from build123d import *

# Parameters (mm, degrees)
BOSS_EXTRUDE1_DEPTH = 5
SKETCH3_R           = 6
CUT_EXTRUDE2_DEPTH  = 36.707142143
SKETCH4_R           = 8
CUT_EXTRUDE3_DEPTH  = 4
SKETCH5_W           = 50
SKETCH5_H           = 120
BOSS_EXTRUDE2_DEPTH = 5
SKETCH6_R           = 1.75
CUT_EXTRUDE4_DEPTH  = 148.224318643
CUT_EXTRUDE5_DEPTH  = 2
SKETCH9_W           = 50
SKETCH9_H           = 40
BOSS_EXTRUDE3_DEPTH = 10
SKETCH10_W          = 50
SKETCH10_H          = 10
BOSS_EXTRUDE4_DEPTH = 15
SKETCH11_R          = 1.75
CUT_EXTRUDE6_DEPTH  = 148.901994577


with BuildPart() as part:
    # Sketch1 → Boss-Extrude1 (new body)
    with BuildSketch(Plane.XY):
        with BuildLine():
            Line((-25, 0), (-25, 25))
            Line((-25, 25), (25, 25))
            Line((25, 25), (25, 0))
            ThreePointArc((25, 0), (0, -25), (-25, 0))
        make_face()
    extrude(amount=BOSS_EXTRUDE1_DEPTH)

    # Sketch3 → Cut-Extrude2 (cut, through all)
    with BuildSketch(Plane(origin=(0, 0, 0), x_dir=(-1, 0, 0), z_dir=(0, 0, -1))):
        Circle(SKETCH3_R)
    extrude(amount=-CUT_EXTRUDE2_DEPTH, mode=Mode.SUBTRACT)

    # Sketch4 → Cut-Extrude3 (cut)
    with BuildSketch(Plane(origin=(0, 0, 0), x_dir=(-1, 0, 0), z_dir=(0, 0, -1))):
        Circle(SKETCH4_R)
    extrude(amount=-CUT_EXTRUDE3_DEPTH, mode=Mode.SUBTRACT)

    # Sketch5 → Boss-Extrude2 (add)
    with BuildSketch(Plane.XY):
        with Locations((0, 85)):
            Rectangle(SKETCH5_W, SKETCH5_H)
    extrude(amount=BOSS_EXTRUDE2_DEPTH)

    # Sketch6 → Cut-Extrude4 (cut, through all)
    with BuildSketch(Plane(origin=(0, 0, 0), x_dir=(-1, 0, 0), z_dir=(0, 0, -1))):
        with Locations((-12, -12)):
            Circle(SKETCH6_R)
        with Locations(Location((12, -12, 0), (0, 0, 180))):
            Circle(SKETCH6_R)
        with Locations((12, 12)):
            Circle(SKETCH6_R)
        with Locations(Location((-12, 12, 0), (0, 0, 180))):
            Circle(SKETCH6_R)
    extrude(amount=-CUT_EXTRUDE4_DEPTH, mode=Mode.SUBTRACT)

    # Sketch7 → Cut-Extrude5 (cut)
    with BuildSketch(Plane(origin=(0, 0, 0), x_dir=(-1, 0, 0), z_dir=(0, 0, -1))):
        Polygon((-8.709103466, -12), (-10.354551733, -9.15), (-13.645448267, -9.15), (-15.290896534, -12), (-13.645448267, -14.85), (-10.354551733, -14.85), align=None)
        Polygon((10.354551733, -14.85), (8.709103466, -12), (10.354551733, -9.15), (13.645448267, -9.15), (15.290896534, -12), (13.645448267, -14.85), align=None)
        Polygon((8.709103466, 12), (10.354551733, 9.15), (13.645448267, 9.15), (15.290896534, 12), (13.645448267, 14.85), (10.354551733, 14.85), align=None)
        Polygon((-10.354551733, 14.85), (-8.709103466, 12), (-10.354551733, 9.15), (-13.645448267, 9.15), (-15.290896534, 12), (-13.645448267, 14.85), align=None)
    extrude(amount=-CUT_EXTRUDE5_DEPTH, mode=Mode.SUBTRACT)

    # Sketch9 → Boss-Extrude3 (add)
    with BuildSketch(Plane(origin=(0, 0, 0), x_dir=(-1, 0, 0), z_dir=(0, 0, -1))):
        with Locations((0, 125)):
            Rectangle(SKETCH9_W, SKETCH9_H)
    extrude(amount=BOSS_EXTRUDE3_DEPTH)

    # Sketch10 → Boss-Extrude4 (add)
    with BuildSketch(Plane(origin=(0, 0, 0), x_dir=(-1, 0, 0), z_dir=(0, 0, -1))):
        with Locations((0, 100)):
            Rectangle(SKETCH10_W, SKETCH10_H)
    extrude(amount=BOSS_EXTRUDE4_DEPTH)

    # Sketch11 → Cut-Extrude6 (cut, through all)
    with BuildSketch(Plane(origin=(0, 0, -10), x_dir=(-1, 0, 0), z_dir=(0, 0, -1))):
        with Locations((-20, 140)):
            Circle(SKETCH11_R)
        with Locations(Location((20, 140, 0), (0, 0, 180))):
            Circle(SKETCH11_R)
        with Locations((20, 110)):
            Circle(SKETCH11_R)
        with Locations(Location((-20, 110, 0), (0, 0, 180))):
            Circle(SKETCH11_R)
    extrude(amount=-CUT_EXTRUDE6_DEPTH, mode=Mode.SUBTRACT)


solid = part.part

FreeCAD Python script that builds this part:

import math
import FreeCAD as App
import Part
import Sketcher

V = App.Vector
Q = App.Units.Quantity

doc = App.newDocument("Part")
body = doc.addObject("PartDesign::Body", "Body")

# Sketch on XY plane
sketch1 = body.newObject("Sketcher::SketchObject", "Sketch")
sketch1.AttachmentSupport = (doc.getObject("XY_Plane"), [""])
sketch1.MapMode = "FlatFace"
sketch1.addGeometry(Part.LineSegment(V(-25, 25, 0), V(-25, 0, 0)), False)
sketch1.addGeometry(Part.ArcOfCircle(Part.Circle(V(0, 0, 0), V(0, 0, 1), 25), math.radians(180), math.radians(360)), False)
sketch1.addGeometry(Part.LineSegment(V(25, 0, 0), V(25, 25, 0)), False)
sketch1.addGeometry(Part.LineSegment(V(25, 25, 0), V(-25, 25, 0)), False)
sketch1.addConstraint(Sketcher.Constraint("Tangent", 0, 2, 1, 1))
sketch1.addConstraint(Sketcher.Constraint("Tangent", 1, 2, 2, 1))
sketch1.addConstraint(Sketcher.Constraint("Coincident", 2, 2, 3, 1))
sketch1.addConstraint(Sketcher.Constraint("Coincident", 3, 2, 0, 1))
sketch1.addConstraint(Sketcher.Constraint("Vertical", 0))
sketch1.addConstraint(Sketcher.Constraint("Vertical", 2))
sketch1.addConstraint(Sketcher.Constraint("Horizontal", 3))
sketch1.addConstraint(Sketcher.Constraint("Coincident", 1, 3, -1, 1))
sketch1.addConstraint(Sketcher.Constraint("Radius", 1, Q("25 mm")))
sketch1.addConstraint(Sketcher.Constraint("DistanceY", 0, 2, 0, 1, Q("25 mm")))
pad1 = body.newObject("PartDesign::Pad", "Pad")
pad1.Profile = sketch1
pad1.Length = 5

# Sketch on XY plane
sketch2 = body.newObject("Sketcher::SketchObject", "Sketch001")
sketch2.AttachmentSupport = (doc.getObject("XY_Plane"), [""])
sketch2.MapMode = "FlatFace"
sketch2.addGeometry(Part.Circle(V(0, 0, 0), V(0, 0, 1), 6), False)
sketch2.addConstraint(Sketcher.Constraint("Coincident", 0, 3, -1, 1))
sketch2.addConstraint(Sketcher.Constraint("Diameter", 0, Q("12 mm")))
pocket1 = body.newObject("PartDesign::Pocket", "Pocket")
pocket1.Profile = sketch2
pocket1.Type = "ThroughAll"
pocket1.Reversed = True

# Sketch on XY plane
sketch3 = body.newObject("Sketcher::SketchObject", "Sketch002")
sketch3.AttachmentSupport = (doc.getObject("XY_Plane"), [""])
sketch3.MapMode = "FlatFace"
sketch3.addGeometry(Part.Circle(V(0, 0, 0), V(0, 0, 1), 8), False)
sketch3.addConstraint(Sketcher.Constraint("Coincident", 0, 3, -1, 1))
sketch3.addConstraint(Sketcher.Constraint("Diameter", 0, Q("16 mm")))
pocket2 = body.newObject("PartDesign::Pocket", "Pocket001")
pocket2.Profile = sketch3
pocket2.Length = 4
pocket2.Reversed = True

# Sketch on XY plane
sketch4 = body.newObject("Sketcher::SketchObject", "Sketch003")
sketch4.AttachmentSupport = (doc.getObject("XY_Plane"), [""])
sketch4.MapMode = "FlatFace"
sketch4.addGeometry(Part.LineSegment(V(-25, 145, 0), V(-25, 25, 0)), False)
sketch4.addGeometry(Part.LineSegment(V(-25, 25, 0), V(25, 25, 0)), False)
sketch4.addGeometry(Part.LineSegment(V(25, 25, 0), V(25, 145, 0)), False)
sketch4.addGeometry(Part.LineSegment(V(25, 145, 0), V(-25, 145, 0)), False)
sketch4.addConstraint(Sketcher.Constraint("Coincident", 0, 2, 1, 1))
sketch4.addConstraint(Sketcher.Constraint("Coincident", 1, 2, 2, 1))
sketch4.addConstraint(Sketcher.Constraint("Coincident", 2, 2, 3, 1))
sketch4.addConstraint(Sketcher.Constraint("Coincident", 3, 2, 0, 1))
sketch4.addConstraint(Sketcher.Constraint("Vertical", 0))
sketch4.addConstraint(Sketcher.Constraint("Horizontal", 1))
sketch4.addConstraint(Sketcher.Constraint("Vertical", 2))
sketch4.addConstraint(Sketcher.Constraint("Horizontal", 3))
sketch4.addConstraint(Sketcher.Constraint("DistanceX", 1, 1, 1, 2, Q("50 mm")))
sketch4.addConstraint(Sketcher.Constraint("DistanceY", 0, 2, 0, 1, Q("120 mm")))
sketch4.addConstraint(Sketcher.Constraint("DistanceX", 0, 2, -1, 1, Q("25 mm")))
sketch4.addConstraint(Sketcher.Constraint("DistanceY", -1, 1, 0, 2, Q("25 mm")))
pad2 = body.newObject("PartDesign::Pad", "Pad001")
pad2.Profile = sketch4
pad2.Length = 5

# Sketch on XY plane
sketch5 = body.newObject("Sketcher::SketchObject", "Sketch004")
sketch5.AttachmentSupport = (doc.getObject("XY_Plane"), [""])
sketch5.MapMode = "FlatFace"
sketch5.addGeometry(Part.Circle(V(12, -12, 0), V(0, 0, 1), 1.8), False)
sketch5.addGeometry(Part.Circle(V(-12, -12, 0), V(0, 0, 1), 1.8), False)
sketch5.addGeometry(Part.Circle(V(-12, 12, 0), V(0, 0, 1), 1.8), False)
sketch5.addGeometry(Part.Circle(V(12, 12, 0), V(0, 0, 1), 1.8), False)
sketch5.addConstraint(Sketcher.Constraint("Equal", 0, 1))
sketch5.addConstraint(Sketcher.Constraint("Equal", 1, 2))
sketch5.addConstraint(Sketcher.Constraint("Equal", 2, 3))
sketch5.addConstraint(Sketcher.Constraint("Symmetric", 0, 3, 2, 3, -1, 1))
sketch5.addConstraint(Sketcher.Constraint("Symmetric", 1, 3, 3, 3, -1, 1))
sketch5.addConstraint(Sketcher.Constraint("Symmetric", 0, 3, 1, 3, -2))
sketch5.addConstraint(Sketcher.Constraint("Diameter", 0, Q("3.5 mm")))
sketch5.addConstraint(Sketcher.Constraint("DistanceX", -1, 1, 0, 3, Q("12 mm")))
sketch5.addConstraint(Sketcher.Constraint("DistanceY", 0, 3, -1, 1, Q("12 mm")))
pocket3 = body.newObject("PartDesign::Pocket", "Pocket002")
pocket3.Profile = sketch5
pocket3.Type = "ThroughAll"
pocket3.Reversed = True

# Sketch on XY plane
sketch6 = body.newObject("Sketcher::SketchObject", "Sketch005")
sketch6.AttachmentSupport = (doc.getObject("XY_Plane"), [""])
sketch6.MapMode = "FlatFace"
sketch6.addGeometry(Part.LineSegment(V(8.7, -12, 0), V(10.4, -9.2, 0)), False)
sketch6.addGeometry(Part.LineSegment(V(10.4, -9.2, 0), V(13.6, -9.2, 0)), False)
sketch6.addGeometry(Part.LineSegment(V(13.6, -9.2, 0), V(15.3, -12, 0)), False)
sketch6.addGeometry(Part.LineSegment(V(15.3, -12, 0), V(13.6, -14.8, 0)), False)
sketch6.addGeometry(Part.LineSegment(V(13.6, -14.8, 0), V(10.4, -14.8, 0)), False)
sketch6.addGeometry(Part.LineSegment(V(10.4, -14.8, 0), V(8.7, -12, 0)), False)
sketch6.addGeometry(Part.LineSegment(V(-8.7, -12, 0), V(-10.4, -14.8, 0)), False)
sketch6.addGeometry(Part.LineSegment(V(-10.4, -14.8, 0), V(-13.6, -14.8, 0)), False)
sketch6.addGeometry(Part.LineSegment(V(-13.6, -14.8, 0), V(-15.3, -12, 0)), False)
sketch6.addGeometry(Part.LineSegment(V(-15.3, -12, 0), V(-13.6, -9.2, 0)), False)
sketch6.addGeometry(Part.LineSegment(V(-13.6, -9.2, 0), V(-10.4, -9.2, 0)), False)
sketch6.addGeometry(Part.LineSegment(V(-10.4, -9.2, 0), V(-8.7, -12, 0)), False)
sketch6.addGeometry(Part.LineSegment(V(-8.7, 12, 0), V(-10.4, 9.2, 0)), False)
sketch6.addGeometry(Part.LineSegment(V(-10.4, 9.2, 0), V(-13.6, 9.2, 0)), False)
sketch6.addGeometry(Part.LineSegment(V(-13.6, 9.2, 0), V(-15.3, 12, 0)), False)
sketch6.addGeometry(Part.LineSegment(V(-15.3, 12, 0), V(-13.6, 14.8, 0)), False)
sketch6.addGeometry(Part.LineSegment(V(-13.6, 14.8, 0), V(-10.4, 14.8, 0)), False)
sketch6.addGeometry(Part.LineSegment(V(-10.4, 14.8, 0), V(-8.7, 12, 0)), False)
sketch6.addGeometry(Part.LineSegment(V(8.7, 12, 0), V(10.4, 14.8, 0)), False)
sketch6.addGeometry(Part.LineSegment(V(10.4, 14.8, 0), V(13.6, 14.8, 0)), False)
sketch6.addGeometry(Part.LineSegment(V(13.6, 14.8, 0), V(15.3, 12, 0)), False)
sketch6.addGeometry(Part.LineSegment(V(15.3, 12, 0), V(13.6, 9.2, 0)), False)
sketch6.addGeometry(Part.LineSegment(V(13.6, 9.2, 0), V(10.4, 9.2, 0)), False)
sketch6.addGeometry(Part.LineSegment(V(10.4, 9.2, 0), V(8.7, 12, 0)), False)
sketch6.addConstraint(Sketcher.Constraint("Coincident", 0, 2, 1, 1))
sketch6.addConstraint(Sketcher.Constraint("Coincident", 1, 2, 2, 1))
sketch6.addConstraint(Sketcher.Constraint("Coincident", 2, 2, 3, 1))
sketch6.addConstraint(Sketcher.Constraint("Coincident", 3, 2, 4, 1))
sketch6.addConstraint(Sketcher.Constraint("Coincident", 4, 2, 5, 1))
sketch6.addConstraint(Sketcher.Constraint("Coincident", 5, 2, 0, 1))
sketch6.addConstraint(Sketcher.Constraint("Coincident", 6, 2, 7, 1))
sketch6.addConstraint(Sketcher.Constraint("Coincident", 7, 2, 8, 1))
sketch6.addConstraint(Sketcher.Constraint("Coincident", 8, 2, 9, 1))
sketch6.addConstraint(Sketcher.Constraint("Coincident", 9, 2, 10, 1))
sketch6.addConstraint(Sketcher.Constraint("Coincident", 10, 2, 11, 1))
sketch6.addConstraint(Sketcher.Constraint("Coincident", 11, 2, 6, 1))
sketch6.addConstraint(Sketcher.Constraint("Coincident", 12, 2, 13, 1))
sketch6.addConstraint(Sketcher.Constraint("Coincident", 13, 2, 14, 1))
sketch6.addConstraint(Sketcher.Constraint("Coincident", 14, 2, 15, 1))
sketch6.addConstraint(Sketcher.Constraint("Coincident", 15, 2, 16, 1))
sketch6.addConstraint(Sketcher.Constraint("Coincident", 16, 2, 17, 1))
sketch6.addConstraint(Sketcher.Constraint("Coincident", 17, 2, 12, 1))
sketch6.addConstraint(Sketcher.Constraint("Coincident", 18, 2, 19, 1))
sketch6.addConstraint(Sketcher.Constraint("Coincident", 19, 2, 20, 1))
sketch6.addConstraint(Sketcher.Constraint("Coincident", 20, 2, 21, 1))
sketch6.addConstraint(Sketcher.Constraint("Coincident", 21, 2, 22, 1))
sketch6.addConstraint(Sketcher.Constraint("Coincident", 22, 2, 23, 1))
sketch6.addConstraint(Sketcher.Constraint("Coincident", 23, 2, 18, 1))
sketch6.addConstraint(Sketcher.Constraint("Horizontal", 1))
sketch6.addConstraint(Sketcher.Constraint("Horizontal", 4))
sketch6.addConstraint(Sketcher.Constraint("Horizontal", 7))
sketch6.addConstraint(Sketcher.Constraint("Horizontal", 10))
sketch6.addConstraint(Sketcher.Constraint("Horizontal", 13))
sketch6.addConstraint(Sketcher.Constraint("Horizontal", 16))
sketch6.addConstraint(Sketcher.Constraint("Horizontal", 19))
sketch6.addConstraint(Sketcher.Constraint("Horizontal", 22))
sketch6.addConstraint(Sketcher.Constraint("Symmetric", 0, 2, 12, 2, -1, 1))
sketch6.addConstraint(Sketcher.Constraint("Symmetric", 2, 2, 14, 2, -1, 1))
sketch6.addConstraint(Sketcher.Constraint("Symmetric", 3, 2, 15, 2, -1, 1))
sketch6.addConstraint(Sketcher.Constraint("Symmetric", 5, 2, 17, 2, -1, 1))
sketch6.addConstraint(Sketcher.Constraint("Symmetric", 6, 2, 18, 2, -1, 1))
sketch6.addConstraint(Sketcher.Constraint("Symmetric", 8, 2, 20, 2, -1, 1))
sketch6.addConstraint(Sketcher.Constraint("Symmetric", 9, 2, 21, 2, -1, 1))
sketch6.addConstraint(Sketcher.Constraint("Symmetric", 11, 2, 23, 2, -1, 1))
sketch6.addConstraint(Sketcher.Constraint("Symmetric", 4, 2, 6, 2, -2))
sketch6.addConstraint(Sketcher.Constraint("Symmetric", 2, 2, 8, 2, -2))
sketch6.addConstraint(Sketcher.Constraint("Symmetric", 1, 2, 9, 2, -2))
sketch6.addConstraint(Sketcher.Constraint("Symmetric", 5, 2, 11, 2, -2))
sketch6.addConstraint(Sketcher.Constraint("Parallel", 0, 3))
sketch6.addConstraint(Sketcher.Constraint("Parallel", 2, 5))
sketch6.addConstraint(Sketcher.Constraint("Parallel", 3, 6))
sketch6.addConstraint(Sketcher.Constraint("Parallel", 5, 8))
sketch6.addConstraint(Sketcher.Constraint("Parallel", 8, 11))
sketch6.addConstraint(Sketcher.Constraint("Parallel", 11, 14))
sketch6.addConstraint(Sketcher.Constraint("Parallel", 14, 17))
sketch6.addConstraint(Sketcher.Constraint("Parallel", 17, 20))
sketch6.addConstraint(Sketcher.Constraint("Parallel", 20, 23))
sketch6.addConstraint(Sketcher.Constraint("Horizontal", 2, 2, 5, 2))
sketch6.addConstraint(Sketcher.Constraint("Vertical", 1, 2, 3, 2))
sketch6.addConstraint(Sketcher.Constraint("Angle", 0, Q("60 deg")))
sketch6.addConstraint(Sketcher.Constraint("DistanceY", 2, 2, -1, 1, Q("12 mm")))
sketch6.addConstraint(Sketcher.Constraint("DistanceX", 6, 2, 3, 2, Q("24 mm")))
sketch6.addConstraint(Sketcher.Constraint("DistanceY", 3, 2, 1, 2, Q("5.7 mm")))
sketch6.addConstraint(Sketcher.Constraint("DistanceX", 1, 1, 1, 2, Q("3.290897 mm")))
pocket4 = body.newObject("PartDesign::Pocket", "Pocket003")
pocket4.Profile = sketch6
pocket4.Length = 2
pocket4.Reversed = True

# Sketch on XY plane
sketch7 = body.newObject("Sketcher::SketchObject", "Sketch006")
sketch7.AttachmentSupport = (doc.getObject("XY_Plane"), [""])
sketch7.MapMode = "FlatFace"
sketch7.addGeometry(Part.LineSegment(V(25, 145, 0), V(25, 105, 0)), False)
sketch7.addGeometry(Part.LineSegment(V(25, 105, 0), V(-25, 105, 0)), False)
sketch7.addGeometry(Part.LineSegment(V(-25, 105, 0), V(-25, 145, 0)), False)
sketch7.addGeometry(Part.LineSegment(V(-25, 145, 0), V(25, 145, 0)), False)
sketch7.addConstraint(Sketcher.Constraint("Coincident", 0, 2, 1, 1))
sketch7.addConstraint(Sketcher.Constraint("Coincident", 1, 2, 2, 1))
sketch7.addConstraint(Sketcher.Constraint("Coincident", 2, 2, 3, 1))
sketch7.addConstraint(Sketcher.Constraint("Coincident", 3, 2, 0, 1))
sketch7.addConstraint(Sketcher.Constraint("Vertical", 0))
sketch7.addConstraint(Sketcher.Constraint("Horizontal", 1))
sketch7.addConstraint(Sketcher.Constraint("Vertical", 2))
sketch7.addConstraint(Sketcher.Constraint("Horizontal", 3))
sketch7.addConstraint(Sketcher.Constraint("DistanceX", 1, 2, 1, 1, Q("50 mm")))
sketch7.addConstraint(Sketcher.Constraint("DistanceY", 0, 2, 0, 1, Q("40 mm")))
sketch7.addConstraint(Sketcher.Constraint("DistanceX", -1, 1, 0, 2, Q("25 mm")))
sketch7.addConstraint(Sketcher.Constraint("DistanceY", -1, 1, 0, 2, Q("105 mm")))
pad3 = body.newObject("PartDesign::Pad", "Pad002")
pad3.Profile = sketch7
pad3.Length = 10
pad3.Reversed = True

# Sketch on XY plane
sketch8 = body.newObject("Sketcher::SketchObject", "Sketch007")
sketch8.AttachmentSupport = (doc.getObject("XY_Plane"), [""])
sketch8.MapMode = "FlatFace"
sketch8.addGeometry(Part.LineSegment(V(25, 105, 0), V(25, 95, 0)), False)
sketch8.addGeometry(Part.LineSegment(V(25, 95, 0), V(-25, 95, 0)), False)
sketch8.addGeometry(Part.LineSegment(V(-25, 95, 0), V(-25, 105, 0)), False)
sketch8.addGeometry(Part.LineSegment(V(-25, 105, 0), V(25, 105, 0)), False)
sketch8.addConstraint(Sketcher.Constraint("Coincident", 0, 2, 1, 1))
sketch8.addConstraint(Sketcher.Constraint("Coincident", 1, 2, 2, 1))
sketch8.addConstraint(Sketcher.Constraint("Coincident", 2, 2, 3, 1))
sketch8.addConstraint(Sketcher.Constraint("Coincident", 3, 2, 0, 1))
sketch8.addConstraint(Sketcher.Constraint("Vertical", 0))
sketch8.addConstraint(Sketcher.Constraint("Horizontal", 1))
sketch8.addConstraint(Sketcher.Constraint("Vertical", 2))
sketch8.addConstraint(Sketcher.Constraint("Horizontal", 3))
sketch8.addConstraint(Sketcher.Constraint("DistanceX", 1, 2, 1, 1, Q("50 mm")))
sketch8.addConstraint(Sketcher.Constraint("DistanceY", 0, 2, 0, 1, Q("10 mm")))
sketch8.addConstraint(Sketcher.Constraint("DistanceX", -1, 1, 0, 2, Q("25 mm")))
sketch8.addConstraint(Sketcher.Constraint("DistanceY", -1, 1, 0, 2, Q("95 mm")))
pad4 = body.newObject("PartDesign::Pad", "Pad003")
pad4.Profile = sketch8
pad4.Length = 15
pad4.Reversed = True

# Sketch on XY plane
sketch9 = body.newObject("Sketcher::SketchObject", "Sketch008")
sketch9.AttachmentSupport = (doc.getObject("XY_Plane"), [""])
sketch9.MapMode = "FlatFace"
sketch9.AttachmentOffset = App.Placement(V(0, 0, -10), App.Rotation())
sketch9.addGeometry(Part.Circle(V(20, 140, 0), V(0, 0, 1), 1.8), False)
sketch9.addGeometry(Part.Circle(V(-20, 140, 0), V(0, 0, 1), 1.8), False)
sketch9.addGeometry(Part.Circle(V(-20, 110, 0), V(0, 0, 1), 1.8), False)
sketch9.addGeometry(Part.Circle(V(20, 110, 0), V(0, 0, 1), 1.8), False)
sketch9.addConstraint(Sketcher.Constraint("Equal", 0, 1))
sketch9.addConstraint(Sketcher.Constraint("Equal", 1, 2))
sketch9.addConstraint(Sketcher.Constraint("Equal", 2, 3))
sketch9.addConstraint(Sketcher.Constraint("Symmetric", 0, 3, 1, 3, -2))
sketch9.addConstraint(Sketcher.Constraint("Symmetric", 2, 3, 3, 3, -2))
sketch9.addConstraint(Sketcher.Constraint("Vertical", 1, 3, 2, 3))
sketch9.addConstraint(Sketcher.Constraint("Diameter", 0, Q("3.5 mm")))
sketch9.addConstraint(Sketcher.Constraint("DistanceX", -1, 1, 0, 3, Q("20 mm")))
sketch9.addConstraint(Sketcher.Constraint("DistanceY", -1, 1, 0, 3, Q("140 mm")))
sketch9.addConstraint(Sketcher.Constraint("DistanceY", -1, 1, 2, 3, Q("110 mm")))
pocket5 = body.newObject("PartDesign::Pocket", "Pocket004")
pocket5.Profile = sketch9
pocket5.Type = "ThroughAll"
pocket5.Reversed = True

doc.recompute()
